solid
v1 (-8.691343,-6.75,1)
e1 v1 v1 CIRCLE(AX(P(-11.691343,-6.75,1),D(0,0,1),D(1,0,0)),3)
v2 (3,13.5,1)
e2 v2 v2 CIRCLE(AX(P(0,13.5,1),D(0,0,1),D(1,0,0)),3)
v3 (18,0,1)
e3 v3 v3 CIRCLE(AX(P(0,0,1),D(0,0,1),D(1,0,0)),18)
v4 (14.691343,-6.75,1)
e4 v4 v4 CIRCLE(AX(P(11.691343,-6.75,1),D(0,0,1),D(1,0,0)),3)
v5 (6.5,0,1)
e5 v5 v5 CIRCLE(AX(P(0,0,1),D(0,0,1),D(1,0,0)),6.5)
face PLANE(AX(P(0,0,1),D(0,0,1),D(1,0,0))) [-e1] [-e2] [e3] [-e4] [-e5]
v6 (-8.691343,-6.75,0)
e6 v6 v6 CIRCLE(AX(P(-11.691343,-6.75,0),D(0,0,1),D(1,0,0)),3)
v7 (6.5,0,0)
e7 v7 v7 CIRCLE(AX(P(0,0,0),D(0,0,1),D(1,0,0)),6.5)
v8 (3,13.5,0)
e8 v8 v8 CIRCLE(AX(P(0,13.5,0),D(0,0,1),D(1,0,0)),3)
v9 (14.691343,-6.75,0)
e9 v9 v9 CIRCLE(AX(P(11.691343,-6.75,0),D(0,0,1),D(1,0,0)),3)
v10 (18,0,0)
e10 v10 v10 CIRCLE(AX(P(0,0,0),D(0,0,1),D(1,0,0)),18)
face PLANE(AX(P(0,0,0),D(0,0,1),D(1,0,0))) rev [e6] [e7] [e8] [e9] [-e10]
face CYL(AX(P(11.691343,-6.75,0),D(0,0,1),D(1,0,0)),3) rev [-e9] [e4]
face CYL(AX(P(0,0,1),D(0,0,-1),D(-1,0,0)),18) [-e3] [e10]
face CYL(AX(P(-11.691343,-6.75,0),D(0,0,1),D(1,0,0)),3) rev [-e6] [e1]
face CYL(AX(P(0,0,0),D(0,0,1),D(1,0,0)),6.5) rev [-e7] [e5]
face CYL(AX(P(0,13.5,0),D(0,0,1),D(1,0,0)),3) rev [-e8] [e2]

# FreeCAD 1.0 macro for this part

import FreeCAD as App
import Part
import Sketcher

V = App.Vector

doc = App.newDocument("Part")
body = doc.addObject("PartDesign::Body", "Body")

# Sketch on XY plane
sketch1 = body.newObject("Sketcher::SketchObject", "Sketch")
sketch1.AttachmentSupport = (doc.getObject("XY_Plane"), [""])
sketch1.MapMode = "FlatFace"
sketch1.addGeometry(Part.Circle(V(0, 0, 0), V(0, 0, 1), 18), False)
sketch1.addConstraint([
    Sketcher.Constraint("Coincident", 0, 3, -1, 1),
    Sketcher.Constraint("Diameter", 0, 36.0),
])
pad1 = body.newObject("PartDesign::Pad", "Pad")
pad1.Profile = sketch1
pad1.Length = 1

# Sketch on XY plane
sketch2 = body.newObject("Sketcher::SketchObject", "Sketch001")
sketch2.AttachmentSupport = (doc.getObject("XY_Plane"), [""])
sketch2.MapMode = "FlatFace"
sketch2.AttachmentOffset = App.Placement(V(0, 0, 1), App.Rotation())
sketch2.addGeometry([
    Part.Circle(V(0, 13.5, 0), V(0, 0, 1), 3),
    Part.Circle(V(11.7, -6.8, 0), V(0, 0, 1), 3),
    Part.Circle(V(-11.7, -6.8, 0), V(0, 0, 1), 3),
    Part.Circle(V(0, 0, 0), V(0, 0, 1), 6.5),
], False)
sketch2.addConstraint([
    Sketcher.Constraint("Coincident", 3, 3, -1, 1),
    Sketcher.Constraint("Equal", 0, 1),
    Sketcher.Constraint("Equal", 1, 2),
    Sketcher.Constraint("Symmetric", 1, 3, 2, 3, -2),
    Sketcher.Constraint("PointOnObject", 0, 3, -2),
    Sketcher.Constraint("Diameter", 0, 6.0),
    Sketcher.Constraint("Diameter", 3, 13.0),
    Sketcher.Constraint("DistanceY", -1, 1, 0, 3, 13.5),
    Sketcher.Constraint("DistanceY", 1, 3, -1, 1, 6.75),
    Sketcher.Constraint("DistanceX", -1, 1, 1, 3, 11.691343),
])
pocket1 = body.newObject("PartDesign::Pocket", "Pocket")
pocket1.Profile = sketch2
pocket1.Length = 1

doc.recompute()
